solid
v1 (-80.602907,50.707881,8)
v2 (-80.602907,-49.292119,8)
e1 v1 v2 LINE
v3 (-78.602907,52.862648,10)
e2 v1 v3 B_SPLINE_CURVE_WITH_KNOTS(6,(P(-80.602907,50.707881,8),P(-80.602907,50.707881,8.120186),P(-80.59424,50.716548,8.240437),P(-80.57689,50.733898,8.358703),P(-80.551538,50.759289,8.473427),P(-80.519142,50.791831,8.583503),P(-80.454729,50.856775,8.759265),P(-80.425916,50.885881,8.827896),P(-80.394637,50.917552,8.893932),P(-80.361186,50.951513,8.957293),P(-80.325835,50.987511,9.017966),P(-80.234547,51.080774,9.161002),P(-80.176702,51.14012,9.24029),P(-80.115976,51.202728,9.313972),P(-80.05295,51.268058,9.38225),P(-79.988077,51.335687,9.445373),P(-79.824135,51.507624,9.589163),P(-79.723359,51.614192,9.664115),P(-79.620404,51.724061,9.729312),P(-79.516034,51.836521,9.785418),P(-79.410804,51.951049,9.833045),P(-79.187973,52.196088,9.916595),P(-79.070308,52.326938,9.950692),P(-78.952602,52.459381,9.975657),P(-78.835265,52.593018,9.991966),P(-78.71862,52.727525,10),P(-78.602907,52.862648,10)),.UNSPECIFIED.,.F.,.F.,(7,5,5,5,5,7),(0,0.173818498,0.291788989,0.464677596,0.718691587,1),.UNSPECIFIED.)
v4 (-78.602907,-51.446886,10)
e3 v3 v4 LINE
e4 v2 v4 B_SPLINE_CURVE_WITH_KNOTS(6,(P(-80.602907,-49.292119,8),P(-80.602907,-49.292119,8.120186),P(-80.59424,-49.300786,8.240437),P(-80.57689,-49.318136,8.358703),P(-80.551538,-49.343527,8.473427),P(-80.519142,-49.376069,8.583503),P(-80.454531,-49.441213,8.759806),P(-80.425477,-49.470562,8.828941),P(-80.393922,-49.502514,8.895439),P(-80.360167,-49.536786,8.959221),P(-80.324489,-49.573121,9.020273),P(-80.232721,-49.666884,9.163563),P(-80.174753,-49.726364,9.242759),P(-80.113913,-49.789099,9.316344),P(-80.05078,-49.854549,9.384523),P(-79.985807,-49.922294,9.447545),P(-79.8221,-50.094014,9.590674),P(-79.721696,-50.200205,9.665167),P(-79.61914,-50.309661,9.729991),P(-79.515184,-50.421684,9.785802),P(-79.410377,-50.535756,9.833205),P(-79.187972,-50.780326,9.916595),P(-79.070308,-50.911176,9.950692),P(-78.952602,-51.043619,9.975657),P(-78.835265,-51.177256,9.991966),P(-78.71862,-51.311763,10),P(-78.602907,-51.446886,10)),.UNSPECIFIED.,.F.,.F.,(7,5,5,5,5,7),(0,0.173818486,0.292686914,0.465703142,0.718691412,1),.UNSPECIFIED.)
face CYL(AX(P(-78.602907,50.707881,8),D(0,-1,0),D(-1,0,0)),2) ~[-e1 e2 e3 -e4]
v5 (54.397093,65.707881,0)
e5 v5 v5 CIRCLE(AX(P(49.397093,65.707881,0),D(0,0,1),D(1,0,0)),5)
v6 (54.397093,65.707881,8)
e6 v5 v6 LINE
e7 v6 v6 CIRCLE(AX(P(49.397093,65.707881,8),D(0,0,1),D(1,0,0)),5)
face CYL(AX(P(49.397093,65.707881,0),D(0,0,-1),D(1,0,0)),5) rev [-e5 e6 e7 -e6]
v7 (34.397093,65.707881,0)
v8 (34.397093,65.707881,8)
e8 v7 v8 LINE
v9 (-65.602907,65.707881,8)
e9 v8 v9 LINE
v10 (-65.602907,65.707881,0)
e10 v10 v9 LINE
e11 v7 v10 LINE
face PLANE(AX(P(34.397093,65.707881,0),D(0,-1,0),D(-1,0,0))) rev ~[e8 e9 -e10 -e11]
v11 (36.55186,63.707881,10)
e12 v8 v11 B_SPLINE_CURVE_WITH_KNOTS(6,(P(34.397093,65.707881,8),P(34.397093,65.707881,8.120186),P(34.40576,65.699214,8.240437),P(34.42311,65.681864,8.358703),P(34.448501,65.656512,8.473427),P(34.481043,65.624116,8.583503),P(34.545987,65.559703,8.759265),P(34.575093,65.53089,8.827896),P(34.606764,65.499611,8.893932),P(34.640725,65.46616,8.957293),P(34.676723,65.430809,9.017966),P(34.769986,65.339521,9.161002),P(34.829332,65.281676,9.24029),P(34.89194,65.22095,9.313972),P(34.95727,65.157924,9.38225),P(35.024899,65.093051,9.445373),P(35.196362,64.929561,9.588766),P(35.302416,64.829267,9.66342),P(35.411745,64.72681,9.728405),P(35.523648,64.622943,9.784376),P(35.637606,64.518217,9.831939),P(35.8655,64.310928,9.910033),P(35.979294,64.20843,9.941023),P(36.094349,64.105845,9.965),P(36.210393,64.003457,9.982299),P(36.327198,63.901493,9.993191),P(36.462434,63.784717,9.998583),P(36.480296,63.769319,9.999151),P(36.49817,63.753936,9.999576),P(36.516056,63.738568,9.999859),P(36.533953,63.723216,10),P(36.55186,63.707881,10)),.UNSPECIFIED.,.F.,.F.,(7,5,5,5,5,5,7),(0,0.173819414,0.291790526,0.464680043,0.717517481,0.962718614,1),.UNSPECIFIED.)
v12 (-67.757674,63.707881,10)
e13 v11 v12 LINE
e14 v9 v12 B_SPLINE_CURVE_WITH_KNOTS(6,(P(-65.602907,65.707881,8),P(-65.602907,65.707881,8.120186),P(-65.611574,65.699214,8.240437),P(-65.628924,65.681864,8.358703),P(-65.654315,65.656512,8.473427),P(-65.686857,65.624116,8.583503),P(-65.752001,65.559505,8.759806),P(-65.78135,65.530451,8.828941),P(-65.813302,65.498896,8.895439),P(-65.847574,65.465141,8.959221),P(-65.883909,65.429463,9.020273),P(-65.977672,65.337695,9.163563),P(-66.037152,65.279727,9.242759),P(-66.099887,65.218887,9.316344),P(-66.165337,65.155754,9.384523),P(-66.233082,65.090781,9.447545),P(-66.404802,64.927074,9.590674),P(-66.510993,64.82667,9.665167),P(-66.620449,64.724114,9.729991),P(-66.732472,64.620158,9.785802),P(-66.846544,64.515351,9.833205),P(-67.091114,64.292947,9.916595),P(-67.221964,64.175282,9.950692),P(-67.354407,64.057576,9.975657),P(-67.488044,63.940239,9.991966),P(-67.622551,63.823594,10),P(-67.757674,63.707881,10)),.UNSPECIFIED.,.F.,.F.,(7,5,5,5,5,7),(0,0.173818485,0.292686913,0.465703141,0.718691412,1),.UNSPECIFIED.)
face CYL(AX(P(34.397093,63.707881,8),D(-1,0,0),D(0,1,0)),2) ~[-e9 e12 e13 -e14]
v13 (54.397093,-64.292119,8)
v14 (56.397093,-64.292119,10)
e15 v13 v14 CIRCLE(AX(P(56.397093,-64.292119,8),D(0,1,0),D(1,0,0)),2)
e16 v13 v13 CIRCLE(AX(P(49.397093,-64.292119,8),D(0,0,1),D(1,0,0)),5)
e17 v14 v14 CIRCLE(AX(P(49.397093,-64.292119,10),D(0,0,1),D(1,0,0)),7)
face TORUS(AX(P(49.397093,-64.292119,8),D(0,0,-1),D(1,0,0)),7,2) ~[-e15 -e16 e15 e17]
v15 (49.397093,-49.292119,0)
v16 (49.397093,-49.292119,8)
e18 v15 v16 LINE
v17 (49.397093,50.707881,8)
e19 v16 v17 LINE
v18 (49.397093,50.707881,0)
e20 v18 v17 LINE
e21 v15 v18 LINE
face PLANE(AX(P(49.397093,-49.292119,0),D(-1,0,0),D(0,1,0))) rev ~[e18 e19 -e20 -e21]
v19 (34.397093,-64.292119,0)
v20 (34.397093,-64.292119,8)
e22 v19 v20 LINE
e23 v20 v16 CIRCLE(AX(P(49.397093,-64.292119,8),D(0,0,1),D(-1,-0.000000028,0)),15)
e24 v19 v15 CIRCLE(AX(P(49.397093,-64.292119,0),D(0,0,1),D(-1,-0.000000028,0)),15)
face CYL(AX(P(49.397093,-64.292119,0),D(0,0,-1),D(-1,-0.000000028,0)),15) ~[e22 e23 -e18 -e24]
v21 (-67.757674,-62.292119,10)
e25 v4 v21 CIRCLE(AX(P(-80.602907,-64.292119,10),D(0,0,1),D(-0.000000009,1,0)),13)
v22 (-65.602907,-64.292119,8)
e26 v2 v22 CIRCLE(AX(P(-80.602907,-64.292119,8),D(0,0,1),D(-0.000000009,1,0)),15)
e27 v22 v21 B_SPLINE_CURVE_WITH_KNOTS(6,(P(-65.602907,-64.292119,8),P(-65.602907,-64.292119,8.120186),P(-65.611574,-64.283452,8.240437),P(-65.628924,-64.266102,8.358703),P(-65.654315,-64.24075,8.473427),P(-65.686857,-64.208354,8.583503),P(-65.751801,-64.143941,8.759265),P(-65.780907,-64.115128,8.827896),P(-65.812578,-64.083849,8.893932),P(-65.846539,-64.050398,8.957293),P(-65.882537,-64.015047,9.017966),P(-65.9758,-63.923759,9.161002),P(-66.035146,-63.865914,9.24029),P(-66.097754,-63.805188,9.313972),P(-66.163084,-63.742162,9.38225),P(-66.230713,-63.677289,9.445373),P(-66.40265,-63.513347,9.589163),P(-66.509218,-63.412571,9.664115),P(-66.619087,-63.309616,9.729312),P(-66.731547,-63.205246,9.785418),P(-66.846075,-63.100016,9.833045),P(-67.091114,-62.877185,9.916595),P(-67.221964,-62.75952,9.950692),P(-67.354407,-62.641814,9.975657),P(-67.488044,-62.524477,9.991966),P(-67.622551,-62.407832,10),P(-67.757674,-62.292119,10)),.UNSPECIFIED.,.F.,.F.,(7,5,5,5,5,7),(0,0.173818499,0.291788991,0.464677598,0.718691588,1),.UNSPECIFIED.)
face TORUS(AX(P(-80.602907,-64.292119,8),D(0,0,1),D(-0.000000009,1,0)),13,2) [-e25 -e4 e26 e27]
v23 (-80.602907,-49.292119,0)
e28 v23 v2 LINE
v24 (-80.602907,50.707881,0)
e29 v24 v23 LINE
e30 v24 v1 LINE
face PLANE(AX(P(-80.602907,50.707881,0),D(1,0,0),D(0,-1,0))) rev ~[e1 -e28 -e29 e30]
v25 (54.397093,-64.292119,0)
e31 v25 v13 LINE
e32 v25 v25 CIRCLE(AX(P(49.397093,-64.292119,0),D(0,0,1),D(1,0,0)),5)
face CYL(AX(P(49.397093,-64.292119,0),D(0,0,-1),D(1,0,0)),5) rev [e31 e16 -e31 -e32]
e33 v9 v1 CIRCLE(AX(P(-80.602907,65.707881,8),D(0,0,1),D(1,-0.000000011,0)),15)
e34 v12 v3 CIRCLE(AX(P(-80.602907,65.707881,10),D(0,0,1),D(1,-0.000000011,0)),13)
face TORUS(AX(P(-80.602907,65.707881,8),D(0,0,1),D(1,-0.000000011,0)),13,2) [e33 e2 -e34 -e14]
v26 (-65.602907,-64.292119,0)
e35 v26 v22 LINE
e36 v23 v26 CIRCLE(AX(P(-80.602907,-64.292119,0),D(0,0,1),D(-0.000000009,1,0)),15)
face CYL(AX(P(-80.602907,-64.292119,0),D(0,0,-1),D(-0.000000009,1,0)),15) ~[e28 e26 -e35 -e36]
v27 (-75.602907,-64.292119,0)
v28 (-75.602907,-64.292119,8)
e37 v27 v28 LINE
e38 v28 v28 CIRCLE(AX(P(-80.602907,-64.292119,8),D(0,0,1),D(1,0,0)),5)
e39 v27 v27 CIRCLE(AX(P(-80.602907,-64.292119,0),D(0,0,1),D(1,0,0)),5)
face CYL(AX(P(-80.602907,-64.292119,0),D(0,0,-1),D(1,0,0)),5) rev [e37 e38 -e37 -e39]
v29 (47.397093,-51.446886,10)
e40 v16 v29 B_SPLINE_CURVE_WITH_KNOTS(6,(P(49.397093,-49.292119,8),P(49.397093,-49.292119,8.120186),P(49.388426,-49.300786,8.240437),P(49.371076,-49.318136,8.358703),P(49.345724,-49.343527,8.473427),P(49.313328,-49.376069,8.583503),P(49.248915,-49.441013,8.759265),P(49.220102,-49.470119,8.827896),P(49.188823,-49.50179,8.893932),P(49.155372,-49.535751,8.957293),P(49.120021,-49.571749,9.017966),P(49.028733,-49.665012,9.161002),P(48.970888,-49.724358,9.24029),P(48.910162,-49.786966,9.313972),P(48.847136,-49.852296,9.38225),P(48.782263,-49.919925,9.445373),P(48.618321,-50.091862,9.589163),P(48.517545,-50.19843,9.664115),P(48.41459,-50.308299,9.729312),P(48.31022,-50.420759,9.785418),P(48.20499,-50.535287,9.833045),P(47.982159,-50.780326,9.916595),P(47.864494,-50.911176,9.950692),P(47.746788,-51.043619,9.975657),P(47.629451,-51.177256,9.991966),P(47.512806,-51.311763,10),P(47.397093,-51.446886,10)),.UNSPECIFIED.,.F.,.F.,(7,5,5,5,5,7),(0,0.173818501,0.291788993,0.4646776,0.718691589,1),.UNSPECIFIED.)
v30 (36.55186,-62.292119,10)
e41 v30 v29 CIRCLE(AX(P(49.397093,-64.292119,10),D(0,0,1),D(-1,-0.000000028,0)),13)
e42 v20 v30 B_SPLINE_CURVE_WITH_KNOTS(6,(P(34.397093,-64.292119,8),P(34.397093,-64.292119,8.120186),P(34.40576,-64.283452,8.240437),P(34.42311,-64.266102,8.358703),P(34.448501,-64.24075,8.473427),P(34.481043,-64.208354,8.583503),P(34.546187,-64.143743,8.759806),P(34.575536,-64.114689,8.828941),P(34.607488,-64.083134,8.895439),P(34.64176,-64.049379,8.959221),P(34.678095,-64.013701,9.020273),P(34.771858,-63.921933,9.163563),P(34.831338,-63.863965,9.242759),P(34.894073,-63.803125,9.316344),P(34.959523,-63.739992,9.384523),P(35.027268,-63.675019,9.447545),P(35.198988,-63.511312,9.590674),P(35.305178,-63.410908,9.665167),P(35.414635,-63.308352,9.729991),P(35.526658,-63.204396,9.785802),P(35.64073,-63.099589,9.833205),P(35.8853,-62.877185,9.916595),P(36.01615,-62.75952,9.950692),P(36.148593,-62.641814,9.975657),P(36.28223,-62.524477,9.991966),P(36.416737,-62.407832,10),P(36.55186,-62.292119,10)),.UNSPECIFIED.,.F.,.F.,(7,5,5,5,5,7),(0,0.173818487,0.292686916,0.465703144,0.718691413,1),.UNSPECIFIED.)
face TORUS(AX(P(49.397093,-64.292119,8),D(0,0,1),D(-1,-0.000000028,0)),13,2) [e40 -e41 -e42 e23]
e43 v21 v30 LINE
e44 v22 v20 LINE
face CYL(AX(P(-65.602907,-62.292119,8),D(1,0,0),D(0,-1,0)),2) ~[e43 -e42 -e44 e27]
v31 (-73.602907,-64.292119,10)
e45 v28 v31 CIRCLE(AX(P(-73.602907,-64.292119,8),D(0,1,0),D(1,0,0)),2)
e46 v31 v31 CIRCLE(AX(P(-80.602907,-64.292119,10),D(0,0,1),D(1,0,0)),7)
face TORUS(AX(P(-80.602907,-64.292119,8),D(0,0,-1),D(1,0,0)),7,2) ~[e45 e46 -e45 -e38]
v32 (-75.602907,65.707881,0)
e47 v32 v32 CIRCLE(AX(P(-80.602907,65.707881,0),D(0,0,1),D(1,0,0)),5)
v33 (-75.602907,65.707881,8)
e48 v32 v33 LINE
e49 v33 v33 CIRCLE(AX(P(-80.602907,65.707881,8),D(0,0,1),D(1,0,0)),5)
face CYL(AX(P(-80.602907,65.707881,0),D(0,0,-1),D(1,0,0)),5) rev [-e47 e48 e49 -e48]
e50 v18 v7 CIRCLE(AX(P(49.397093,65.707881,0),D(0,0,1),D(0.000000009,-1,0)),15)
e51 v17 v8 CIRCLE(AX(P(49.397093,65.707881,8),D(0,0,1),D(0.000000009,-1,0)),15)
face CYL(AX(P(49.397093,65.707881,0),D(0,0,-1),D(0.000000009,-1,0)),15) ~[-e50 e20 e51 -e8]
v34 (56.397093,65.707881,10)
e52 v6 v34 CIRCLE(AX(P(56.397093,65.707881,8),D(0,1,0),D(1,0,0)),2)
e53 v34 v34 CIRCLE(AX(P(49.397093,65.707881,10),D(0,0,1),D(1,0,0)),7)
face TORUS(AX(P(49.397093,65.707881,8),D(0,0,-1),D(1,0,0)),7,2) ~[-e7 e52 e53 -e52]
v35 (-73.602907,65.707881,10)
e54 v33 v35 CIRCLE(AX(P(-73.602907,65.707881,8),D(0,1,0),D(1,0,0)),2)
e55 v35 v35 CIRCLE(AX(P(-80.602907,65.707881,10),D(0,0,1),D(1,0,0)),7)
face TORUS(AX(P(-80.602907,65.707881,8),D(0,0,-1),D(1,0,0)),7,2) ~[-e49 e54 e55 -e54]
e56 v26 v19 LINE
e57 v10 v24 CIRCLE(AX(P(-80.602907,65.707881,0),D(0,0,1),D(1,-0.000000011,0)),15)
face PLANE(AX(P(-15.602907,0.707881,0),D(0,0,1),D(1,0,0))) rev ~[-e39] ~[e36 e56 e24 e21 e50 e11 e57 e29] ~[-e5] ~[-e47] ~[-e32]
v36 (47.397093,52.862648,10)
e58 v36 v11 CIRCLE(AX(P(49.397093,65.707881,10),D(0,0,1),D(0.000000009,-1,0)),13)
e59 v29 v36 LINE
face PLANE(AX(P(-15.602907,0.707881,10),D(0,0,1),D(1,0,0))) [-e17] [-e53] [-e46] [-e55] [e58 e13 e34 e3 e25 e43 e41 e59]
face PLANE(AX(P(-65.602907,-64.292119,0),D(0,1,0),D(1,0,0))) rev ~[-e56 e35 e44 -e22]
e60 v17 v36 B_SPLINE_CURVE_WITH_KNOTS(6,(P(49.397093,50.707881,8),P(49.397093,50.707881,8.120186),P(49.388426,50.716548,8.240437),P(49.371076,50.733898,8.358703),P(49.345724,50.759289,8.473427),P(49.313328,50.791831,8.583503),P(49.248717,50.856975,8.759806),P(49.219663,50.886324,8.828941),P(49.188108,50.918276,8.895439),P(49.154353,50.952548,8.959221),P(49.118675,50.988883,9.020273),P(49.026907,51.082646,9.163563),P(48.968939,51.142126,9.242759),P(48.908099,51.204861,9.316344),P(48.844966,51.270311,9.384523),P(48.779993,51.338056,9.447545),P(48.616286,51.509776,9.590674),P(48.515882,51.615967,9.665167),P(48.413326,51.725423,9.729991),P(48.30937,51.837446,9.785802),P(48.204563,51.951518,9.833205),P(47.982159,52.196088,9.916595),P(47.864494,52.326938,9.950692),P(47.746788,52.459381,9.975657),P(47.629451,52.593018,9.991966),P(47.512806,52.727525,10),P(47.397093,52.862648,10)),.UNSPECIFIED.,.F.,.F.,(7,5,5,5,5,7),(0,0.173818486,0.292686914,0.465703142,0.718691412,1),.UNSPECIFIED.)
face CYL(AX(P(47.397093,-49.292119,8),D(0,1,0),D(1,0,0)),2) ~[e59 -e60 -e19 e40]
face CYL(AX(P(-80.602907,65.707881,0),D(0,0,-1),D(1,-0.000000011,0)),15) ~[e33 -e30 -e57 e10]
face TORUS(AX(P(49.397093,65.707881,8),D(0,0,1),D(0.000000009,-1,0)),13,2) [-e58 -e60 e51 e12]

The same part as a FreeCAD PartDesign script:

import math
import FreeCAD as App
import Part
import Sketcher
from FreeCAD import Vector
Q = App.Units.Quantity


def edges_at(feature, points):
    """Names of the edges that pass closest to the given points."""
    edges = feature.Shape.Edges
    near = lambda p: min(range(len(edges)), key=lambda i: edges[i].distToShape(Part.Vertex(*p))[0])
    return sorted({f"Edge{near(p) + 1}" for p in points})

doc = App.newDocument("Part")
body = doc.addObject("PartDesign::Body", "Body")

# Sketch on XY plane
sketch1 = body.newObject("Sketcher::SketchObject", "Sketch")
sketch1.AttachmentSupport = (doc.getObject("XY_Plane"), [""])
sketch1.MapMode = "FlatFace"
sketch1.addGeometry(Part.LineSegment(Vector(34, 66, 0), Vector(-66, 66, 0)), False)
sketch1.addGeometry(Part.ArcOfCircle(Part.Circle(Vector(-81, 66, 0), Vector(0, 0, 1), 15), math.radians(0), math.radians(270)), False)
sketch1.addGeometry(Part.LineSegment(Vector(-81, 51, 0), Vector(-81, -49, 0)), False)
sketch1.addGeometry(Part.ArcOfCircle(Part.Circle(Vector(-81, -64, 0), Vector(0, 0, 1), 15), math.radians(90), math.radians(360)), False)
sketch1.addGeometry(Part.LineSegment(Vector(-66, -64, 0), Vector(34, -64, 0)), False)
sketch1.addGeometry(Part.ArcOfCircle(Part.Circle(Vector(49, -64, 0), Vector(0, 0, 1), 15), math.radians(-180), math.radians(90)), False)
sketch1.addGeometry(Part.LineSegment(Vector(49, -49, 0), Vector(49, 51, 0)), False)
sketch1.addGeometry(Part.ArcOfCircle(Part.Circle(Vector(49, 66, 0), Vector(0, 0, 1), 15), math.radians(-90), math.radians(180)), False)
sketch1.addGeometry(Part.Circle(Vector(-81, -64, 0), Vector(0, 0, 1), 5), False)
sketch1.addGeometry(Part.Circle(Vector(49, -64, 0), Vector(0, 0, 1), 5), False)
sketch1.addGeometry(Part.Circle(Vector(-81, 66, 0), Vector(0, 0, 1), 5), False)
sketch1.addGeometry(Part.Circle(Vector(49, 66, 0), Vector(0, 0, 1), 5), False)
sketch1.addConstraint(Sketcher.Constraint("Coincident", 0, 2, 1, 1))
sketch1.addConstraint(Sketcher.Constraint("Coincident", 1, 2, 2, 1))
sketch1.addConstraint(Sketcher.Constraint("Coincident", 2, 2, 3, 1))
sketch1.addConstraint(Sketcher.Constraint("Coincident", 3, 2, 4, 1))
sketch1.addConstraint(Sketcher.Constraint("Coincident", 4, 2, 5, 1))
sketch1.addConstraint(Sketcher.Constraint("Coincident", 5, 2, 6, 1))
sketch1.addConstraint(Sketcher.Constraint("Coincident", 6, 2, 7, 1))
sketch1.addConstraint(Sketcher.Constraint("Coincident", 7, 2, 0, 1))
sketch1.addConstraint(Sketcher.Constraint("Horizontal", 0))
sketch1.addConstraint(Sketcher.Constraint("Vertical", 2))
sketch1.addConstraint(Sketcher.Constraint("Horizontal", 4))
sketch1.addConstraint(Sketcher.Constraint("Vertical", 6))
sketch1.addConstraint(Sketcher.Constraint("Coincident", 8, 3, 3, 3))
sketch1.addConstraint(Sketcher.Constraint("Coincident", 9, 3, 5, 3))
sketch1.addConstraint(Sketcher.Constraint("Coincident", 10, 3, 1, 3))
sketch1.addConstraint(Sketcher.Constraint("Coincident", 11, 3, 7, 3))
sketch1.addConstraint(Sketcher.Constraint("Equal", 1, 3))
sketch1.addConstraint(Sketcher.Constraint("Equal", 3, 5))
sketch1.addConstraint(Sketcher.Constraint("Equal", 5, 7))
sketch1.addConstraint(Sketcher.Constraint("Equal", 8, 9))
sketch1.addConstraint(Sketcher.Constraint("Equal", 9, 10))
sketch1.addConstraint(Sketcher.Constraint("Equal", 10, 11))
sketch1.addConstraint(Sketcher.Constraint("Horizontal", 3, 3, 5, 3))
sketch1.addConstraint(Sketcher.Constraint("Horizontal", 1, 3, 7, 3))
sketch1.addConstraint(Sketcher.Constraint("Horizontal", 11, 3, 0, 2))
sketch1.addConstraint(Sketcher.Constraint("Horizontal", 9, 3, 3, 2))
sketch1.addConstraint(Sketcher.Constraint("Vertical", 1, 3, 3, 3))
sketch1.addConstraint(Sketcher.Constraint("Vertical", 5, 3, 7, 3))
sketch1.addConstraint(Sketcher.Constraint("Vertical", 10, 3, 1, 2))
sketch1.addConstraint(Sketcher.Constraint("Vertical", 11, 3, 5, 2))
sketch1.addConstraint(Sketcher.Constraint("Equal", 4, 2))
sketch1.addConstraint(Sketcher.Constraint("Diameter", 8, Q("10 mm")))
sketch1.addConstraint(Sketcher.Constraint("Radius", 1, Q("15 mm")))
sketch1.addConstraint(Sketcher.Constraint("DistanceX", 0, 2, 0, 1, Q("100 mm")))
sketch1.addConstraint(Sketcher.Constraint("DistanceY", -1, 1, 1, 3, Q("65.707881 mm")))
sketch1.addConstraint(Sketcher.Constraint("DistanceX", 1, 3, -1, 1, Q("80.602907 mm")))
pad1 = body.newObject("PartDesign::Pad", "Pad")
pad1.Profile = sketch1
pad1.Length = 10
doc.recompute()

fillet = body.newObject("PartDesign::Fillet", "Fillet")
fillet.Base = (pad1, edges_at(pad1, [
    (-15.603, 65.708, 10),
    (-91.21, 76.314, 10),
    (-80.603, 0.708, 10),
    (-91.21, -74.899, 10),
    (-15.603, -64.292, 10),
    (60.004, -74.899, 10),
    (49.397, 0.708, 10),
    (60.004, 76.314, 10),
    (-85.603, -64.292, 10),
    (44.397, -64.292, 10),
    (-85.603, 65.708, 10),
    (44.397, 65.708, 10),
]))
fillet.Radius = 2

doc.recompute()
